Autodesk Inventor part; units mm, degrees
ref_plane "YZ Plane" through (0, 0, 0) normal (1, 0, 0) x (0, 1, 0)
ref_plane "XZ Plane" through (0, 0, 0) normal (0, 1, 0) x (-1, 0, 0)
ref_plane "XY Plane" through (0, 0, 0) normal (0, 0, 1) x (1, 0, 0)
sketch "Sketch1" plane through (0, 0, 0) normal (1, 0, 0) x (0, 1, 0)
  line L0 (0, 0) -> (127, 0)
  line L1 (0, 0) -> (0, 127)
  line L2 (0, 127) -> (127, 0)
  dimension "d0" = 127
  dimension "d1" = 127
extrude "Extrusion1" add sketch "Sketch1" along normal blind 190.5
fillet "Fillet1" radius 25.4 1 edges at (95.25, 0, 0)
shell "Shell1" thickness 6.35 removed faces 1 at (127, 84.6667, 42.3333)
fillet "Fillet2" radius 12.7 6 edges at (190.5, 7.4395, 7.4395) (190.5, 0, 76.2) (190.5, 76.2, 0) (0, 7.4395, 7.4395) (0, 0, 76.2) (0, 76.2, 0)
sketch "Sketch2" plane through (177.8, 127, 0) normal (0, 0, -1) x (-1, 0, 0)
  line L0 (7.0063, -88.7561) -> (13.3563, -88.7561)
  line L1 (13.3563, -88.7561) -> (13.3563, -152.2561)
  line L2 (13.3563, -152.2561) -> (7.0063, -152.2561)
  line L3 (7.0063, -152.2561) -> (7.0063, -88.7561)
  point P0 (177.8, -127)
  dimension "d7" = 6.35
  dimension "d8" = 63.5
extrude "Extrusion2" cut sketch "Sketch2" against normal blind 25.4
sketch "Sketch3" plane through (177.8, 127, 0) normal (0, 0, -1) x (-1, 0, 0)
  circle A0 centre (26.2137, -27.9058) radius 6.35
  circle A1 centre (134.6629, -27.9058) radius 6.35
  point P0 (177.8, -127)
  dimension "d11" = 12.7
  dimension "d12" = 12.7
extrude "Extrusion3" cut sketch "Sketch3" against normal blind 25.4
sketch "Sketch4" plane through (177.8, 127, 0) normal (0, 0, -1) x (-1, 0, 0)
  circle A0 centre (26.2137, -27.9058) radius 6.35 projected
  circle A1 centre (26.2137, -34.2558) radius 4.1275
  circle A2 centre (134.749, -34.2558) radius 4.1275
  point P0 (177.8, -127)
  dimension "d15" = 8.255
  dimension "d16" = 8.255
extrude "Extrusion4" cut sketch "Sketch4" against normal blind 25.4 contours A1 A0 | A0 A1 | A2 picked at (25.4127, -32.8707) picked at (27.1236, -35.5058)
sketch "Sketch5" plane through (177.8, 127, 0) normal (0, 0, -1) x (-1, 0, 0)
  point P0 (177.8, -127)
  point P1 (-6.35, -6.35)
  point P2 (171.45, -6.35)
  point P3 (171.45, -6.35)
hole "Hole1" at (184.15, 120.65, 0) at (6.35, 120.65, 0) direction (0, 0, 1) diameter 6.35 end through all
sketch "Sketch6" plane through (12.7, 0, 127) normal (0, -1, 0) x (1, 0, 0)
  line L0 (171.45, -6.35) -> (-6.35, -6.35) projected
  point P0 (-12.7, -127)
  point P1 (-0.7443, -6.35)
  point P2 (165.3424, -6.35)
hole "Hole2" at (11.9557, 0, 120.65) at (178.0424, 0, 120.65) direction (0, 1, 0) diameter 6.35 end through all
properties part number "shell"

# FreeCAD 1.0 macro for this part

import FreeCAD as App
import Part
import Sketcher
Q = App.Units.Quantity


def edges_at(feature, points):
    """Names of the edges that pass closest to the given points."""
    edges = feature.Shape.Edges
    near = lambda p: min(range(len(edges)), key=lambda i: edges[i].distToShape(Part.Vertex(*p))[0])
    return sorted({f"Edge{near(p) + 1}" for p in points})


def faces_at(feature, points):
    """Names of the faces that lie closest to the given points."""
    faces = feature.Shape.Faces
    near = lambda p: min(range(len(faces)), key=lambda i: faces[i].distToShape(Part.Vertex(*p))[0])
    return sorted({f"Face{near(p) + 1}" for p in points})

doc = App.newDocument("Part")
params = doc.addObject("Spreadsheet::Sheet", "Params")
for row, (alias, value) in enumerate([
    ("sketch1_width", "5 in"),
    ("pad1_length", "7.5 in"),
    ("fillet_radius", "1 in"),
    ("thickness_wall", "0.25 in"),
    ("fillet2_radius", "0.5 in"),
    ("sketch2_height", "2.5 in"),
    ("sketch2_width", "0.25 in"),
    ("pocket1_length", "1 in"),
    ("sketch3_diameter", "0.5 in"),
    ("pocket2_length", "1 in"),
    ("sketch4_diameter", "0.325 in"),
    ("pocket3_length", "1 in"),
    ("sketch5_diameter", "0.25 in"),
    ("hole_diameter", "0.25 in"),
    ("sketch6_diameter", "0.25 in"),
    ("hole2_diameter", "0.25 in"),
], start=1):
    params.set(f"A{row}", alias)
    params.set(f"B{row}", "=" + value)
    params.setAlias(f"B{row}", alias)

body = doc.addObject("PartDesign::Body", "Body")

sketch1 = body.newObject("Sketcher::SketchObject", "Sketch")
sketch1.AttachmentSupport = (doc.getObject("YZ_Plane"), [""])
sketch1.MapMode = "FlatFace"
sketch1.addGeometry([
    Part.LineSegment(App.Vector(0, 127, 0), App.Vector(0, 0, 0)),
    Part.LineSegment(App.Vector(0, 0, 0), App.Vector(127, 0, 0)),
    Part.LineSegment(App.Vector(127, 0, 0), App.Vector(0, 127, 0)),
], False)
sketch1.addConstraint([
    Sketcher.Constraint("Coincident", 0, 2, 1, 1),
    Sketcher.Constraint("Coincident", 1, 2, 2, 1),
    Sketcher.Constraint("Coincident", 2, 2, 0, 1),
    Sketcher.Constraint("Vertical", 0),
    Sketcher.Constraint("Horizontal", 1),
    Sketcher.Constraint("Coincident", 0, 2, -1, 1),
    Sketcher.Constraint("Equal", 1, 0),
    Sketcher.Constraint("DistanceX", 1, 1, 1, 2, Q("5 in")),
])
sketch1.setExpression("Constraints[7]", "Params.sketch1_width")
pad1 = body.newObject("PartDesign::Pad", "Pad")
pad1.Profile = sketch1
pad1.setExpression("Length", "Params.pad1_length")
doc.recompute()

fillet = body.newObject("PartDesign::Fillet", "Fillet")
fillet.Base = (pad1, edges_at(pad1, [(95.25, 0, 0)]))
fillet.setExpression("Radius", "Params.fillet_radius")
doc.recompute()

thickness = body.newObject("PartDesign::Thickness", "Thickness")
thickness.Base = (fillet, faces_at(fillet, [(127, 84.667, 42.333)]))
thickness.setExpression("Value", "Params.thickness_wall")
thickness.Reversed = True
thickness.Join = "Intersection"
doc.recompute()

fillet2 = body.newObject("PartDesign::Fillet", "Fillet001")
fillet2.Base = (thickness, edges_at(thickness, [
    (190.5, 7.439, 7.439),
    (190.5, 0, 76.2),
    (190.5, 76.2, 0),
    (0, 7.439, 7.439),
    (0, 0, 76.2),
    (0, 76.2, 0),
]))
fillet2.setExpression("Radius", "Params.fillet2_radius")

sketch2 = body.newObject("Sketcher::SketchObject", "Sketch001")
sketch2.AttachmentSupport = (doc.getObject("XY_Plane"), [""])
sketch2.MapMode = "FlatFace"
sketch2.addGeometry([
    Part.LineSegment(App.Vector(164, 38, 0), App.Vector(171, 38, 0)),
    Part.LineSegment(App.Vector(171, 38, 0), App.Vector(171, -25, 0)),
    Part.LineSegment(App.Vector(171, -25, 0), App.Vector(164, -25, 0)),
    Part.LineSegment(App.Vector(164, -25, 0), App.Vector(164, 38, 0)),
], False)
sketch2.addConstraint([
    Sketcher.Constraint("Coincident", 0, 2, 1, 1),
    Sketcher.Constraint("Coincident", 1, 2, 2, 1),
    Sketcher.Constraint("Coincident", 2, 2, 3, 1),
    Sketcher.Constraint("Coincident", 3, 2, 0, 1),
    Sketcher.Constraint("Horizontal", 0),
    Sketcher.Constraint("Vertical", 1),
    Sketcher.Constraint("Horizontal", 2),
    Sketcher.Constraint("Vertical", 3),
    Sketcher.Constraint("DistanceY", 1, 2, 1, 1, Q("2.5 in")),
    Sketcher.Constraint("DistanceX", 0, 1, 0, 2, Q("0.25 in")),
    Sketcher.Constraint("DistanceX", -1, 1, 0, 2, Q("170.7937 mm")),
    Sketcher.Constraint("DistanceY", -1, 1, 0, 2, Q("38.244 mm")),
])
sketch2.setExpression("Constraints[8]", "Params.sketch2_height")
sketch2.setExpression("Constraints[9]", "Params.sketch2_width")
pocket1 = body.newObject("PartDesign::Pocket", "Pocket")
pocket1.Profile = sketch2
pocket1.setExpression("Length", "Params.pocket1_length")
pocket1.Reversed = True

sketch3 = body.newObject("Sketcher::SketchObject", "Sketch002")
sketch3.AttachmentSupport = (doc.getObject("XY_Plane"), [""])
sketch3.MapMode = "FlatFace"
sketch3.addGeometry([
    Part.Circle(App.Vector(152, 99, 0), App.Vector(0, 0, 1), 6),
    Part.Circle(App.Vector(43, 99, 0), App.Vector(0, 0, 1), 6),
], False)
sketch3.addConstraint([
    Sketcher.Constraint("Equal", 0, 1),
    Sketcher.Constraint("Horizontal", 0, 3, 1, 3),
    Sketcher.Constraint("Diameter", 0, Q("0.5 in")),
    Sketcher.Constraint("DistanceX", -1, 1, 1, 3, Q("1.6983 in")),
    Sketcher.Constraint("DistanceX", -1, 1, 0, 3, Q("151.5863 mm")),
    Sketcher.Constraint("DistanceY", -1, 1, 0, 3, Q("99.0942 mm")),
])
sketch3.setExpression("Constraints[2]", "Params.sketch3_diameter")
pocket2 = body.newObject("PartDesign::Pocket", "Pocket001")
pocket2.Profile = sketch3
pocket2.setExpression("Length", "Params.pocket2_length")
pocket2.Reversed = True

sketch4 = body.newObject("Sketcher::SketchObject", "Sketch003")
sketch4.AttachmentSupport = (doc.getObject("XY_Plane"), [""])
sketch4.MapMode = "FlatFace"
sketch4.addGeometry([
    Part.Circle(App.Vector(151.6, 92.7, 0), App.Vector(0, 0, 1), 4.1),
    Part.Circle(App.Vector(43.1, 92.7, 0), App.Vector(0, 0, 1), 4.1),
], False)
sketch4.addConstraint([
    Sketcher.Constraint("Equal", 0, 1),
    Sketcher.Constraint("Horizontal", 0, 3, 1, 3),
    Sketcher.Constraint("Diameter", 0, Q("0.325 in")),
    Sketcher.Constraint("DistanceX", -1, 1, 0, 3, Q("151.5863 mm")),
    Sketcher.Constraint("DistanceY", -1, 1, 0, 3, Q("92.7442 mm")),
    Sketcher.Constraint("DistanceX", -1, 1, 1, 3, Q("43.051 mm")),
])
sketch4.setExpression("Constraints[2]", "Params.sketch4_diameter")
pocket3 = body.newObject("PartDesign::Pocket", "Pocket002")
pocket3.Profile = sketch4
pocket3.setExpression("Length", "Params.pocket3_length")
pocket3.Reversed = True

sketch5 = body.newObject("Sketcher::SketchObject", "Sketch004")
sketch5.AttachmentSupport = (doc.getObject("XY_Plane"), [""])
sketch5.MapMode = "FlatFace"
sketch5.addGeometry([
    Part.Circle(App.Vector(184.2, 120.7, 0), App.Vector(0, 0, 1), 3.2),
    Part.Circle(App.Vector(6.3, 120.7, 0), App.Vector(0, 0, 1), 3.2),
], False)
sketch5.addConstraint([
    Sketcher.Constraint("Equal", 0, 1),
    Sketcher.Constraint("Horizontal", 0, 3, 1, 3),
    Sketcher.Constraint("Diameter", 0, Q("0.25 in")),
    Sketcher.Constraint("DistanceX", 1, 3, 0, 3, Q("7 in")),
    Sketcher.Constraint("DistanceX", -1, 1, 0, 3, Q("7.25 in")),
    Sketcher.Constraint("DistanceY", -1, 1, 0, 3, Q("4.75 in")),
])
sketch5.setExpression("Constraints[2]", "Params.sketch5_diameter")
doc.recompute()
hole = body.newObject("PartDesign::Hole", "Hole")
hole.Profile = sketch5
hole.ThreadType = "None"
hole.setExpression("Diameter", "Params.hole_diameter")
hole.DepthType = "ThroughAll"
hole.Reversed = True

sketch6 = body.newObject("Sketcher::SketchObject", "Sketch005")
sketch6.AttachmentSupport = (doc.getObject("XZ_Plane"), [""])
sketch6.MapMode = "FlatFace"
sketch6.addGeometry([
    Part.Circle(App.Vector(12, 120.7, 0), App.Vector(0, 0, 1), 3.2),
    Part.Circle(App.Vector(178, 120.7, 0), App.Vector(0, 0, 1), 3.2),
], False)
sketch6.addConstraint([
    Sketcher.Constraint("Equal", 0, 1),
    Sketcher.Constraint("Horizontal", 0, 3, 1, 3),
    Sketcher.Constraint("Diameter", 0, Q("0.25 in")),
    Sketcher.Constraint("DistanceY", -1, 1, 0, 3, Q("4.75 in")),
    Sketcher.Constraint("DistanceX", -1, 1, 0, 3, Q("0.4707 in")),
    Sketcher.Constraint("DistanceX", -1, 1, 1, 3, Q("178.0424 mm")),
])
sketch6.setExpression("Constraints[2]", "Params.sketch6_diameter")
doc.recompute()
hole2 = body.newObject("PartDesign::Hole", "Hole001")
hole2.Profile = sketch6
hole2.ThreadType = "None"
hole2.setExpression("Diameter", "Params.hole2_diameter")
hole2.DepthType = "ThroughAll"

doc.recompute()
